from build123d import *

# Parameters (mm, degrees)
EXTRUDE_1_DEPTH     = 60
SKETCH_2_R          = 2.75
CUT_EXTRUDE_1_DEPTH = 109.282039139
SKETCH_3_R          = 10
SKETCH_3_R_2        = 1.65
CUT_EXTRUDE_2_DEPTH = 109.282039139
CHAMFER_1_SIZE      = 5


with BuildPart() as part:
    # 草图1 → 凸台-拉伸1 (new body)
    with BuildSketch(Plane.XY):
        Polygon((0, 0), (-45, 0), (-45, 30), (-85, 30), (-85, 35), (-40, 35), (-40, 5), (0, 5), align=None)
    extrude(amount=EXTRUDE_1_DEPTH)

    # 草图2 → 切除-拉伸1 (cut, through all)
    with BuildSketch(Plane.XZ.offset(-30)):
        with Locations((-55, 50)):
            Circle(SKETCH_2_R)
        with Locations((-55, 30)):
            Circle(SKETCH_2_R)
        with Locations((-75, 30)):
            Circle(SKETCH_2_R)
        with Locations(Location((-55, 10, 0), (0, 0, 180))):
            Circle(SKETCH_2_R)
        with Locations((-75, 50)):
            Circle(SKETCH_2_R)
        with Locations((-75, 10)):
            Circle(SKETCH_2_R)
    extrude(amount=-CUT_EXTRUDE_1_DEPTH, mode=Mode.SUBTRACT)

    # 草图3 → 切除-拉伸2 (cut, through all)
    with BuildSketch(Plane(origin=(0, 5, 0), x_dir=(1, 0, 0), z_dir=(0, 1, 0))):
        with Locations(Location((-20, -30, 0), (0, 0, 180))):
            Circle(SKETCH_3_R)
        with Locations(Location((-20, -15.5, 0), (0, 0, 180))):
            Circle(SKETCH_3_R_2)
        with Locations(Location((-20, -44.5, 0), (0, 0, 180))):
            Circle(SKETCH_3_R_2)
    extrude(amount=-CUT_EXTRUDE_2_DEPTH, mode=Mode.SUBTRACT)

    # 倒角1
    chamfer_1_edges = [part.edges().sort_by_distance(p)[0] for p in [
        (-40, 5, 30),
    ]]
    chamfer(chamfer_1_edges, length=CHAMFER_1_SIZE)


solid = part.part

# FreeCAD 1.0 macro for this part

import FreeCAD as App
import Part
import Sketcher

V = App.Vector


def edges_at(feature, points):
    """Names of the edges that pass closest to the given points."""
    edges = feature.Shape.Edges
    near = lambda p: min(range(len(edges)), key=lambda i: edges[i].distToShape(Part.Vertex(*p))[0])
    return sorted({f"Edge{near(p) + 1}" for p in points})

doc = App.newDocument("Part")
body = doc.addObject("PartDesign::Body", "Body")

# Sketch on XY plane
sketch1 = body.newObject("Sketcher::SketchObject", "Sketch")
sketch1.AttachmentSupport = (doc.getObject("XY_Plane"), [""])
sketch1.MapMode = "FlatFace"
sketch1.addGeometry([
    Part.LineSegment(V(-45, 0, 0), V(0, 0, 0)),  # 0
    Part.LineSegment(V(0, 0, 0), V(0, 5, 0)),  # 1
    Part.LineSegment(V(0, 5, 0), V(-40, 5, 0)),  # 2
    Part.LineSegment(V(-40, 5, 0), V(-40, 35, 0)),  # 3
    Part.LineSegment(V(-40, 35, 0), V(-85, 35, 0)),  # 4
    Part.LineSegment(V(-85, 35, 0), V(-85, 30, 0)),  # 5
    Part.LineSegment(V(-85, 30, 0), V(-45, 30, 0)),  # 6
    Part.LineSegment(V(-45, 30, 0), V(-45, 0, 0)),  # 7
], False)
sketch1.addConstraint([
    Sketcher.Constraint("Coincident", 0, 2, 1, 1),
    Sketcher.Constraint("Coincident", 1, 2, 2, 1),
    Sketcher.Constraint("Coincident", 2, 2, 3, 1),
    Sketcher.Constraint("Coincident", 3, 2, 4, 1),
    Sketcher.Constraint("Coincident", 4, 2, 5, 1),
    Sketcher.Constraint("Coincident", 5, 2, 6, 1),
    Sketcher.Constraint("Coincident", 6, 2, 7, 1),
    Sketcher.Constraint("Coincident", 7, 2, 0, 1),
    Sketcher.Constraint("Horizontal", 0),
    Sketcher.Constraint("Vertical", 1),
    Sketcher.Constraint("Horizontal", 2),
    Sketcher.Constraint("Vertical", 3),
    Sketcher.Constraint("Horizontal", 4),
    Sketcher.Constraint("Vertical", 5),
    Sketcher.Constraint("Horizontal", 6),
    Sketcher.Constraint("Vertical", 7),
    Sketcher.Constraint("Coincident", 0, 2, -1, 1),
    Sketcher.Constraint("Equal", 0, 4),
    Sketcher.Constraint("Equal", 1, 5),
    Sketcher.Constraint("DistanceX", 0, 1, 0, 2, 45.0),
    Sketcher.Constraint("DistanceX", 2, 2, 2, 1, 40.0),
    Sketcher.Constraint("DistanceY", 1, 1, 1, 2, 5.0),
    Sketcher.Constraint("DistanceY", 3, 1, 3, 2, 30.0),
])
pad1 = body.newObject("PartDesign::Pad", "Pad")
pad1.Profile = sketch1
pad1.Length = 60

# Sketch on XZ plane
sketch2 = body.newObject("Sketcher::SketchObject", "Sketch001")
sketch2.AttachmentSupport = (doc.getObject("XZ_Plane"), [""])
sketch2.MapMode = "FlatFace"
sketch2.AttachmentOffset = App.Placement(V(0, 0, -30), App.Rotation())
sketch2.addGeometry([
    Part.Circle(V(-55, 50, 0), V(0, 0, 1), 2.8),  # 0
    Part.Circle(V(-55, 30, 0), V(0, 0, 1), 2.8),  # 1
    Part.Circle(V(-75, 30, 0), V(0, 0, 1), 2.8),  # 2
    Part.Circle(V(-55, 10, 0), V(0, 0, 1), 2.8),  # 3
    Part.Circle(V(-75, 50, 0), V(0, 0, 1), 2.8),  # 4
    Part.Circle(V(-75, 10, 0), V(0, 0, 1), 2.8),  # 5
], False)
sketch2.addConstraint([
    Sketcher.Constraint("Equal", 0, 1),
    Sketcher.Constraint("Equal", 1, 2),
    Sketcher.Constraint("Equal", 2, 3),
    Sketcher.Constraint("Equal", 3, 4),
    Sketcher.Constraint("Equal", 4, 5),
    Sketcher.Constraint("Horizontal", 1, 3, 2, 3),
    Sketcher.Constraint("Horizontal", 0, 3, 4, 3),
    Sketcher.Constraint("Horizontal", 3, 3, 5, 3),
    Sketcher.Constraint("Vertical", 0, 3, 1, 3),
    Sketcher.Constraint("Vertical", 1, 3, 3, 3),
    Sketcher.Constraint("Vertical", 2, 3, 4, 3),
    Sketcher.Constraint("Vertical", 4, 3, 5, 3),
    Sketcher.Constraint("Diameter", 0, 5.5),
    Sketcher.Constraint("DistanceX", 0, 3, -1, 1, 55.0),
    Sketcher.Constraint("DistanceY", -1, 1, 0, 3, 50.0),
    Sketcher.Constraint("DistanceY", -1, 1, 1, 3, 30.0),
    Sketcher.Constraint("DistanceX", 2, 3, -1, 1, 75.0),
    Sketcher.Constraint("DistanceY", -1, 1, 3, 3, 10.0),
])
pocket1 = body.newObject("PartDesign::Pocket", "Pocket")
pocket1.Profile = sketch2
pocket1.Type = "ThroughAll"

# Sketch on XZ plane
sketch3 = body.newObject("Sketcher::SketchObject", "Sketch002")
sketch3.AttachmentSupport = (doc.getObject("XZ_Plane"), [""])
sketch3.MapMode = "FlatFace"
sketch3.AttachmentOffset = App.Placement(V(0, 0, -5), App.Rotation())
sketch3.addGeometry([
    Part.Circle(V(-20, 30, 0), V(0, 0, 1), 10),
    Part.Circle(V(-20, 15.5, 0), V(0, 0, 1), 1.6),
    Part.Circle(V(-20, 44.5, 0), V(0, 0, 1), 1.6),
], False)
sketch3.addConstraint([
    Sketcher.Constraint("Equal", 1, 2),
    Sketcher.Constraint("Vertical", 0, 3, 1, 3),
    Sketcher.Constraint("Vertical", 1, 3, 2, 3),
    Sketcher.Constraint("Diameter", 0, 20.0),
    Sketcher.Constraint("Diameter", 1, 3.3),
    Sketcher.Constraint("DistanceX", 0, 3, -1, 1, 20.0),
    Sketcher.Constraint("DistanceY", -1, 1, 0, 3, 30.0),
    Sketcher.Constraint("DistanceY", 1, 3, 2, 3, 29.0),
    Sketcher.Constraint("DistanceY", -1, 1, 1, 3, 15.5),
])
pocket2 = body.newObject("PartDesign::Pocket", "Pocket001")
pocket2.Profile = sketch3
pocket2.Type = "ThroughAll"
pocket2.Reversed = True
doc.recompute()

chamfer = body.newObject("PartDesign::Chamfer", "Chamfer")
chamfer.Base = (pocket2, edges_at(pocket2, [(-40, 5, 30)]))
chamfer.Size = 5

doc.recompute()
